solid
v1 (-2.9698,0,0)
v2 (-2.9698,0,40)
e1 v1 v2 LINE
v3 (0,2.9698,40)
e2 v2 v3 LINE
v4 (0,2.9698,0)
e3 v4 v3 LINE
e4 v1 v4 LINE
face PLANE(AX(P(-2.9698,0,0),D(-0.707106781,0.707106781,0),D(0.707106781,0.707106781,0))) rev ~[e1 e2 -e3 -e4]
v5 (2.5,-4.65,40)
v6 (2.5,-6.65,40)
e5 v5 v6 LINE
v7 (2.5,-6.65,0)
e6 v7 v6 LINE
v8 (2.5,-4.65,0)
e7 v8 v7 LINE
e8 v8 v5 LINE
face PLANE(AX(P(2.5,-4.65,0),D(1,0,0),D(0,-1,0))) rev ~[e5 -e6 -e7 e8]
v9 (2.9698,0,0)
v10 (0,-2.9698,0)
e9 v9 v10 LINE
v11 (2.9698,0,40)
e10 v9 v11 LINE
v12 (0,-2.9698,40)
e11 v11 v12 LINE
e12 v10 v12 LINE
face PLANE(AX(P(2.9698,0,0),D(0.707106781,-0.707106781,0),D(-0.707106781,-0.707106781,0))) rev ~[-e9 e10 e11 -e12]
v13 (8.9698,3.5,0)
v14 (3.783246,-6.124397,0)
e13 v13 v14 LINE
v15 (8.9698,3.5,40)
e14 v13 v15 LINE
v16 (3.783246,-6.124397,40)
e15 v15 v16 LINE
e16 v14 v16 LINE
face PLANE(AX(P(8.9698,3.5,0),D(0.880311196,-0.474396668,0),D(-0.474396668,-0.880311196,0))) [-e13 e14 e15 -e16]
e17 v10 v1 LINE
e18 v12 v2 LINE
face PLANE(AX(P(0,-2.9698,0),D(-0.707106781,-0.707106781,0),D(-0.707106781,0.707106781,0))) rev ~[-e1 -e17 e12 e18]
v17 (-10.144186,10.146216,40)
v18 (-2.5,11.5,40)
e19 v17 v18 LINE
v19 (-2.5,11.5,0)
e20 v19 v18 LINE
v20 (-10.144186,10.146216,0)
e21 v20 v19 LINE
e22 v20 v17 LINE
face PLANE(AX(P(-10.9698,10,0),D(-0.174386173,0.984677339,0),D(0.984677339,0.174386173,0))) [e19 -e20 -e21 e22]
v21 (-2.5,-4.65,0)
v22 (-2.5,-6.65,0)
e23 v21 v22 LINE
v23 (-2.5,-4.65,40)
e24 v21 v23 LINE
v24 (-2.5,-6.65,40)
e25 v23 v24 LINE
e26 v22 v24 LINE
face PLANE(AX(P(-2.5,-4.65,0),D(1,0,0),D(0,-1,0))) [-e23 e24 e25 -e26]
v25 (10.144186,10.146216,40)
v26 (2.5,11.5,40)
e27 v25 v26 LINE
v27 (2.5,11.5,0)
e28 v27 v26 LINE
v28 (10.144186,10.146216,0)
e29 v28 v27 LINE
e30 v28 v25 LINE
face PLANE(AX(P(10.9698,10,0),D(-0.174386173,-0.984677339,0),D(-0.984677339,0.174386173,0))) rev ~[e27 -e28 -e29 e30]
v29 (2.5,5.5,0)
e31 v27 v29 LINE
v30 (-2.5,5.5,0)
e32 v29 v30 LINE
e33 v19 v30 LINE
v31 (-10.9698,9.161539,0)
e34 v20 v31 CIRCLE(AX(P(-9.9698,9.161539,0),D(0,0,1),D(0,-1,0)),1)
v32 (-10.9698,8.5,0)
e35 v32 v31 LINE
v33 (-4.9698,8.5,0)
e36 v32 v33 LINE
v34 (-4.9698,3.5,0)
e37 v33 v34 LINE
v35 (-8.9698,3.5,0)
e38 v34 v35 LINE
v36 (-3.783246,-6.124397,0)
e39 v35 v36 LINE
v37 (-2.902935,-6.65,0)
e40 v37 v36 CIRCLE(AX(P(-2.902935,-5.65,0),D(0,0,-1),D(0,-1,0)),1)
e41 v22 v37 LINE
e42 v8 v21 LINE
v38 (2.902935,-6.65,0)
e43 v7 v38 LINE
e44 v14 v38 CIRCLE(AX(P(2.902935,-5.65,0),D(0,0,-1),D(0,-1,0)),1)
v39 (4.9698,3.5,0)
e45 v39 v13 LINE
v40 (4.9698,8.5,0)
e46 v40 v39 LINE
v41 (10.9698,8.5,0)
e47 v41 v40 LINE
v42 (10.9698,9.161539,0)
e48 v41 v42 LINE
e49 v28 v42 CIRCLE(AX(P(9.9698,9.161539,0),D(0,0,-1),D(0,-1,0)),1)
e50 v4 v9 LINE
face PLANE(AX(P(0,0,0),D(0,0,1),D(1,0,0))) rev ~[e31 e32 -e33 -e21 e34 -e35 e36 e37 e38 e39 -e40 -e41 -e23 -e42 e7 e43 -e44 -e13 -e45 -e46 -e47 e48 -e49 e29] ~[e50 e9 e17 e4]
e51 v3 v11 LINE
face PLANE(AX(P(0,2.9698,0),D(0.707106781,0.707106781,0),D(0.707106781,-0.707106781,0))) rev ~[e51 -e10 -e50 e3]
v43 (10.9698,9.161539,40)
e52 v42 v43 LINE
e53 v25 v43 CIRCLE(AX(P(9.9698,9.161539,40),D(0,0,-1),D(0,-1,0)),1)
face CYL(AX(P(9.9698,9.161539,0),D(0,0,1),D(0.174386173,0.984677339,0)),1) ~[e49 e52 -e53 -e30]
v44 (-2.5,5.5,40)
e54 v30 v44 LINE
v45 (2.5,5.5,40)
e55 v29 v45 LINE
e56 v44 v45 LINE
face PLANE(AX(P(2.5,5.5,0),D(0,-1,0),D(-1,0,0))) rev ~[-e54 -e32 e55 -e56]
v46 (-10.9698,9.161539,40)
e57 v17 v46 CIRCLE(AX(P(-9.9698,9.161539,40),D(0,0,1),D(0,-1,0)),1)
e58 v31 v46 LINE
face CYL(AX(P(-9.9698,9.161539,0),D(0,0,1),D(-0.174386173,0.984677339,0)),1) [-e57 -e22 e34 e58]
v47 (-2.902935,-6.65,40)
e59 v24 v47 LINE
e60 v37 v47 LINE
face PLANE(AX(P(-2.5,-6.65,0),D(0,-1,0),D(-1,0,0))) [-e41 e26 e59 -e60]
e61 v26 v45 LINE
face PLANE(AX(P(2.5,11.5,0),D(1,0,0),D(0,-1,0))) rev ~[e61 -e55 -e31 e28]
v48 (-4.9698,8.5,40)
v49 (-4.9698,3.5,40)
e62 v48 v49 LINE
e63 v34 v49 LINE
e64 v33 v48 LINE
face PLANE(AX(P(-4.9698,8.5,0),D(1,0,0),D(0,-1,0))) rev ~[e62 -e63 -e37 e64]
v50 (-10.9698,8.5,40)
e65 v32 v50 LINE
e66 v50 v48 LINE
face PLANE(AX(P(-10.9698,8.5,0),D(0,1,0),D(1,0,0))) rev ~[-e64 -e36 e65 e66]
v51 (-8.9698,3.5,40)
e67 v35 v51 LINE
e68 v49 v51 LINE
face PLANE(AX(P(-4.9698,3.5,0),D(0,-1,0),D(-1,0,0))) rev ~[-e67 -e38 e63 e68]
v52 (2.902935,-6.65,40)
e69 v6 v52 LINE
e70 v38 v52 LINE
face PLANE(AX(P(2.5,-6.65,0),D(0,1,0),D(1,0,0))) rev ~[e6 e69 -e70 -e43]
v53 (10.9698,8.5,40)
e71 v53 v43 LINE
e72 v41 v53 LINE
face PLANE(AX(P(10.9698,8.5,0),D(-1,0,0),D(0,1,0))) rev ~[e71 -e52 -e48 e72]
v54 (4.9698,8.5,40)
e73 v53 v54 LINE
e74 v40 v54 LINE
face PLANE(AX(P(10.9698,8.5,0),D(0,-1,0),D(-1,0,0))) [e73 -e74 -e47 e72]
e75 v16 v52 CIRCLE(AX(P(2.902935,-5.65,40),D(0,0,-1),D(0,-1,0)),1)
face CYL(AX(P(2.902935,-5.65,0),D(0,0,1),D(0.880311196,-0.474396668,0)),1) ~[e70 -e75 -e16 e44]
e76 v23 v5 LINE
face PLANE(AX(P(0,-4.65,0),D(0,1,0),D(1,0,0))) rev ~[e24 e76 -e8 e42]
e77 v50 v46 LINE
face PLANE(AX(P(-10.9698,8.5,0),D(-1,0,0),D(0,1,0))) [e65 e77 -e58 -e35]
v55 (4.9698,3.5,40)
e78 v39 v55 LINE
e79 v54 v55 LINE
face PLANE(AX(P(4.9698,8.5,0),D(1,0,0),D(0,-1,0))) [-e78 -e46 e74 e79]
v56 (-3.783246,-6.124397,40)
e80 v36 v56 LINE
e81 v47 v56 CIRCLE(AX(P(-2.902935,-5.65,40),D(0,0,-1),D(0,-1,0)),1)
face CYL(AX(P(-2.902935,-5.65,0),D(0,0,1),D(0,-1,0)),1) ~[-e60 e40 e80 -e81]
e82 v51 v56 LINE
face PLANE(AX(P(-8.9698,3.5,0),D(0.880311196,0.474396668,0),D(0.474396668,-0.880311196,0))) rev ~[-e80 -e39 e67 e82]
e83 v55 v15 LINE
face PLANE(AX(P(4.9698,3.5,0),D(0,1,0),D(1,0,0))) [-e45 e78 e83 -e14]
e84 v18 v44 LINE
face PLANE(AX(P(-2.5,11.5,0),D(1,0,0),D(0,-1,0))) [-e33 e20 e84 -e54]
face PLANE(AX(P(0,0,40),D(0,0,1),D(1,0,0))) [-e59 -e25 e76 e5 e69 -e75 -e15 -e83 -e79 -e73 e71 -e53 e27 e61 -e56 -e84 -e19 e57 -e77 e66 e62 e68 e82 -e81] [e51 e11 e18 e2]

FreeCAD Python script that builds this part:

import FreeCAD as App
import Part
import Sketcher

V = App.Vector
Q = App.Units.Quantity


def edges_at(feature, points):
    """Names of the edges that pass closest to the given points."""
    edges = feature.Shape.Edges
    near = lambda p: min(range(len(edges)), key=lambda i: edges[i].distToShape(Part.Vertex(*p))[0])
    return sorted({f"Edge{near(p) + 1}" for p in points})

doc = App.newDocument("Part")
body = doc.addObject("PartDesign::Body", "Body")

sketch1 = body.newObject("Sketcher::SketchObject", "Sketch")
sketch1.AttachmentSupport = (doc.getObject("XY_Plane"), [""])
sketch1.MapMode = "FlatFace"
sketch1.addGeometry(Part.LineSegment(V(2.5, 5.5, 0), V(-2.5, 5.5, 0)), False)
sketch1.addGeometry(Part.LineSegment(V(-2.5, 5.5, 0), V(-2.5, 11.5, 0)), False)
sketch1.addGeometry(Part.LineSegment(V(-2.5, 11.5, 0), V(-10.9698, 10, 0)), False)
sketch1.addGeometry(Part.LineSegment(V(-10.9698, 10, 0), V(-10.9698, 8.5, 0)), False)
sketch1.addGeometry(Part.LineSegment(V(-10.9698, 8.5, 0), V(-4.9698, 8.5, 0)), False)
sketch1.addGeometry(Part.LineSegment(V(-4.9698, 8.5, 0), V(-4.9698, 3.5, 0)), False)
sketch1.addGeometry(Part.LineSegment(V(-4.9698, 3.5, 0), V(-8.9698, 3.5, 0)), False)
sketch1.addGeometry(Part.LineSegment(V(-8.9698, 3.5, 0), V(-3.5, -6.65, 0)), False)
sketch1.addGeometry(Part.LineSegment(V(-3.5, -6.65, 0), V(-2.5, -6.65, 0)), False)
sketch1.addGeometry(Part.LineSegment(V(-2.5, -6.65, 0), V(-2.5, -4.65, 0)), False)
sketch1.addGeometry(Part.LineSegment(V(-2.5, -4.65, 0), V(2.5, -4.65, 0)), False)
sketch1.addGeometry(Part.LineSegment(V(2.5, -4.65, 0), V(2.5, -6.65, 0)), False)
sketch1.addGeometry(Part.LineSegment(V(2.5, -6.65, 0), V(3.5, -6.65, 0)), False)
sketch1.addGeometry(Part.LineSegment(V(3.5, -6.65, 0), V(8.9698, 3.5, 0)), False)
sketch1.addGeometry(Part.LineSegment(V(8.9698, 3.5, 0), V(4.9698, 3.5, 0)), False)
sketch1.addGeometry(Part.LineSegment(V(4.9698, 3.5, 0), V(4.9698, 8.5, 0)), False)
sketch1.addGeometry(Part.LineSegment(V(4.9698, 8.5, 0), V(10.9698, 8.5, 0)), False)
sketch1.addGeometry(Part.LineSegment(V(10.9698, 8.5, 0), V(10.9698, 10, 0)), False)
sketch1.addGeometry(Part.LineSegment(V(10.9698, 10, 0), V(2.5, 11.5, 0)), False)
sketch1.addGeometry(Part.LineSegment(V(2.5, 11.5, 0), V(2.5, 5.5, 0)), False)
sketch1.addGeometry(Part.LineSegment(V(2.9698, 0, 0), V(0, -2.9698, 0)), False)
sketch1.addGeometry(Part.LineSegment(V(0, -2.9698, 0), V(-2.9698, 0, 0)), False)
sketch1.addGeometry(Part.LineSegment(V(-2.9698, 0, 0), V(0, 2.9698, 0)), False)
sketch1.addGeometry(Part.LineSegment(V(0, 2.9698, 0), V(2.9698, 0, 0)), False)
sketch1.addConstraint(Sketcher.Constraint("Coincident", 0, 2, 1, 1))
sketch1.addConstraint(Sketcher.Constraint("Coincident", 1, 2, 2, 1))
sketch1.addConstraint(Sketcher.Constraint("Coincident", 2, 2, 3, 1))
sketch1.addConstraint(Sketcher.Constraint("Coincident", 3, 2, 4, 1))
sketch1.addConstraint(Sketcher.Constraint("Coincident", 4, 2, 5, 1))
sketch1.addConstraint(Sketcher.Constraint("Coincident", 5, 2, 6, 1))
sketch1.addConstraint(Sketcher.Constraint("Coincident", 6, 2, 7, 1))
sketch1.addConstraint(Sketcher.Constraint("Coincident", 7, 2, 8, 1))
sketch1.addConstraint(Sketcher.Constraint("Coincident", 8, 2, 9, 1))
sketch1.addConstraint(Sketcher.Constraint("Coincident", 9, 2, 10, 1))
sketch1.addConstraint(Sketcher.Constraint("Coincident", 10, 2, 11, 1))
sketch1.addConstraint(Sketcher.Constraint("Coincident", 11, 2, 12, 1))
sketch1.addConstraint(Sketcher.Constraint("Coincident", 12, 2, 13, 1))
sketch1.addConstraint(Sketcher.Constraint("Coincident", 13, 2, 14, 1))
sketch1.addConstraint(Sketcher.Constraint("Coincident", 14, 2, 15, 1))
sketch1.addConstraint(Sketcher.Constraint("Coincident", 15, 2, 16, 1))
sketch1.addConstraint(Sketcher.Constraint("Coincident", 16, 2, 17, 1))
sketch1.addConstraint(Sketcher.Constraint("Coincident", 17, 2, 18, 1))
sketch1.addConstraint(Sketcher.Constraint("Coincident", 18, 2, 19, 1))
sketch1.addConstraint(Sketcher.Constraint("Coincident", 19, 2, 0, 1))
sketch1.addConstraint(Sketcher.Constraint("Coincident", 20, 2, 21, 1))
sketch1.addConstraint(Sketcher.Constraint("Coincident", 21, 2, 22, 1))
sketch1.addConstraint(Sketcher.Constraint("Coincident", 22, 2, 23, 1))
sketch1.addConstraint(Sketcher.Constraint("Coincident", 23, 2, 20, 1))
sketch1.addConstraint(Sketcher.Constraint("Horizontal", 0))
sketch1.addConstraint(Sketcher.Constraint("Vertical", 1))
sketch1.addConstraint(Sketcher.Constraint("Vertical", 3))
sketch1.addConstraint(Sketcher.Constraint("Horizontal", 4))
sketch1.addConstraint(Sketcher.Constraint("Vertical", 5))
sketch1.addConstraint(Sketcher.Constraint("Horizontal", 6))
sketch1.addConstraint(Sketcher.Constraint("Horizontal", 8))
sketch1.addConstraint(Sketcher.Constraint("Vertical", 9))
sketch1.addConstraint(Sketcher.Constraint("Horizontal", 10))
sketch1.addConstraint(Sketcher.Constraint("Vertical", 11))
sketch1.addConstraint(Sketcher.Constraint("Horizontal", 12))
sketch1.addConstraint(Sketcher.Constraint("Horizontal", 14))
sketch1.addConstraint(Sketcher.Constraint("Vertical", 15))
sketch1.addConstraint(Sketcher.Constraint("Horizontal", 16))
sketch1.addConstraint(Sketcher.Constraint("Vertical", 17))
sketch1.addConstraint(Sketcher.Constraint("Vertical", 19))
sketch1.addConstraint(Sketcher.Constraint("Symmetric", 20, 2, 22, 2, -1, 1))
sketch1.addConstraint(Sketcher.Constraint("Symmetric", 21, 2, 23, 2, -1, 1))
sketch1.addConstraint(Sketcher.Constraint("Symmetric", 8, 2, 11, 2, -2))
sketch1.addConstraint(Sketcher.Constraint("Symmetric", 6, 2, 13, 2, -2))
sketch1.addConstraint(Sketcher.Constraint("Symmetric", 4, 2, 15, 2, -2))
sketch1.addConstraint(Sketcher.Constraint("Symmetric", 2, 2, 17, 2, -2))
sketch1.addConstraint(Sketcher.Constraint("Symmetric", 1, 2, 18, 2, -2))
sketch1.addConstraint(Sketcher.Constraint("PointOnObject", 20, 2, -2))
sketch1.addConstraint(Sketcher.Constraint("PointOnObject", 21, 2, -1))
sketch1.addConstraint(Sketcher.Constraint("Perpendicular", 20, 21))
sketch1.addConstraint(Sketcher.Constraint("Vertical", 1, 2, 8, 2))
sketch1.addConstraint(Sketcher.Constraint("Equal", 8, 12))
sketch1.addConstraint(Sketcher.Constraint("Equal", 16, 1))
sketch1.addConstraint(Sketcher.Constraint("Equal", 10, 5))
sketch1.addConstraint(Sketcher.Constraint("DistanceX", 0, 2, 0, 1, Q("5 mm")))
sketch1.addConstraint(Sketcher.Constraint("DistanceX", 4, 1, 4, 2, Q("6 mm")))
sketch1.addConstraint(Sketcher.Constraint("DistanceX", 6, 2, 6, 1, Q("4 mm")))
sketch1.addConstraint(Sketcher.Constraint("DistanceX", 8, 1, 8, 2, Q("1 mm")))
sketch1.addConstraint(Sketcher.Constraint("DistanceY", 9, 1, 9, 2, Q("2 mm")))
sketch1.addConstraint(Sketcher.Constraint("DistanceY", 3, 2, 3, 1, Q("1.5 mm")))
sketch1.addConstraint(Sketcher.Constraint("DistanceY", 0, 2, 3, 2, Q("3 mm")))
sketch1.addConstraint(Sketcher.Constraint("DistanceX", 5, 2, 21, 2, Q("2 mm")))
sketch1.addConstraint(Sketcher.Constraint("Distance", 20, Q("4.2 mm")))
sketch1.addConstraint(Sketcher.Constraint("DistanceY", -1, 1, 5, 2, Q("3.5 mm")))
sketch1.addConstraint(Sketcher.Constraint("Angle", 7, Q("-61.68 deg")))
pad1 = body.newObject("PartDesign::Pad", "Pad")
pad1.Profile = sketch1
pad1.Length = 40
doc.recompute()

fillet = body.newObject("PartDesign::Fillet", "Fillet")
fillet.Base = (pad1, edges_at(pad1, [
    (-3.5, -6.65, 20),
    (3.5, -6.65, 20),
    (10.97, 10, 20),
    (-10.97, 10, 20),
]))
fillet.Radius = 1

doc.recompute()
